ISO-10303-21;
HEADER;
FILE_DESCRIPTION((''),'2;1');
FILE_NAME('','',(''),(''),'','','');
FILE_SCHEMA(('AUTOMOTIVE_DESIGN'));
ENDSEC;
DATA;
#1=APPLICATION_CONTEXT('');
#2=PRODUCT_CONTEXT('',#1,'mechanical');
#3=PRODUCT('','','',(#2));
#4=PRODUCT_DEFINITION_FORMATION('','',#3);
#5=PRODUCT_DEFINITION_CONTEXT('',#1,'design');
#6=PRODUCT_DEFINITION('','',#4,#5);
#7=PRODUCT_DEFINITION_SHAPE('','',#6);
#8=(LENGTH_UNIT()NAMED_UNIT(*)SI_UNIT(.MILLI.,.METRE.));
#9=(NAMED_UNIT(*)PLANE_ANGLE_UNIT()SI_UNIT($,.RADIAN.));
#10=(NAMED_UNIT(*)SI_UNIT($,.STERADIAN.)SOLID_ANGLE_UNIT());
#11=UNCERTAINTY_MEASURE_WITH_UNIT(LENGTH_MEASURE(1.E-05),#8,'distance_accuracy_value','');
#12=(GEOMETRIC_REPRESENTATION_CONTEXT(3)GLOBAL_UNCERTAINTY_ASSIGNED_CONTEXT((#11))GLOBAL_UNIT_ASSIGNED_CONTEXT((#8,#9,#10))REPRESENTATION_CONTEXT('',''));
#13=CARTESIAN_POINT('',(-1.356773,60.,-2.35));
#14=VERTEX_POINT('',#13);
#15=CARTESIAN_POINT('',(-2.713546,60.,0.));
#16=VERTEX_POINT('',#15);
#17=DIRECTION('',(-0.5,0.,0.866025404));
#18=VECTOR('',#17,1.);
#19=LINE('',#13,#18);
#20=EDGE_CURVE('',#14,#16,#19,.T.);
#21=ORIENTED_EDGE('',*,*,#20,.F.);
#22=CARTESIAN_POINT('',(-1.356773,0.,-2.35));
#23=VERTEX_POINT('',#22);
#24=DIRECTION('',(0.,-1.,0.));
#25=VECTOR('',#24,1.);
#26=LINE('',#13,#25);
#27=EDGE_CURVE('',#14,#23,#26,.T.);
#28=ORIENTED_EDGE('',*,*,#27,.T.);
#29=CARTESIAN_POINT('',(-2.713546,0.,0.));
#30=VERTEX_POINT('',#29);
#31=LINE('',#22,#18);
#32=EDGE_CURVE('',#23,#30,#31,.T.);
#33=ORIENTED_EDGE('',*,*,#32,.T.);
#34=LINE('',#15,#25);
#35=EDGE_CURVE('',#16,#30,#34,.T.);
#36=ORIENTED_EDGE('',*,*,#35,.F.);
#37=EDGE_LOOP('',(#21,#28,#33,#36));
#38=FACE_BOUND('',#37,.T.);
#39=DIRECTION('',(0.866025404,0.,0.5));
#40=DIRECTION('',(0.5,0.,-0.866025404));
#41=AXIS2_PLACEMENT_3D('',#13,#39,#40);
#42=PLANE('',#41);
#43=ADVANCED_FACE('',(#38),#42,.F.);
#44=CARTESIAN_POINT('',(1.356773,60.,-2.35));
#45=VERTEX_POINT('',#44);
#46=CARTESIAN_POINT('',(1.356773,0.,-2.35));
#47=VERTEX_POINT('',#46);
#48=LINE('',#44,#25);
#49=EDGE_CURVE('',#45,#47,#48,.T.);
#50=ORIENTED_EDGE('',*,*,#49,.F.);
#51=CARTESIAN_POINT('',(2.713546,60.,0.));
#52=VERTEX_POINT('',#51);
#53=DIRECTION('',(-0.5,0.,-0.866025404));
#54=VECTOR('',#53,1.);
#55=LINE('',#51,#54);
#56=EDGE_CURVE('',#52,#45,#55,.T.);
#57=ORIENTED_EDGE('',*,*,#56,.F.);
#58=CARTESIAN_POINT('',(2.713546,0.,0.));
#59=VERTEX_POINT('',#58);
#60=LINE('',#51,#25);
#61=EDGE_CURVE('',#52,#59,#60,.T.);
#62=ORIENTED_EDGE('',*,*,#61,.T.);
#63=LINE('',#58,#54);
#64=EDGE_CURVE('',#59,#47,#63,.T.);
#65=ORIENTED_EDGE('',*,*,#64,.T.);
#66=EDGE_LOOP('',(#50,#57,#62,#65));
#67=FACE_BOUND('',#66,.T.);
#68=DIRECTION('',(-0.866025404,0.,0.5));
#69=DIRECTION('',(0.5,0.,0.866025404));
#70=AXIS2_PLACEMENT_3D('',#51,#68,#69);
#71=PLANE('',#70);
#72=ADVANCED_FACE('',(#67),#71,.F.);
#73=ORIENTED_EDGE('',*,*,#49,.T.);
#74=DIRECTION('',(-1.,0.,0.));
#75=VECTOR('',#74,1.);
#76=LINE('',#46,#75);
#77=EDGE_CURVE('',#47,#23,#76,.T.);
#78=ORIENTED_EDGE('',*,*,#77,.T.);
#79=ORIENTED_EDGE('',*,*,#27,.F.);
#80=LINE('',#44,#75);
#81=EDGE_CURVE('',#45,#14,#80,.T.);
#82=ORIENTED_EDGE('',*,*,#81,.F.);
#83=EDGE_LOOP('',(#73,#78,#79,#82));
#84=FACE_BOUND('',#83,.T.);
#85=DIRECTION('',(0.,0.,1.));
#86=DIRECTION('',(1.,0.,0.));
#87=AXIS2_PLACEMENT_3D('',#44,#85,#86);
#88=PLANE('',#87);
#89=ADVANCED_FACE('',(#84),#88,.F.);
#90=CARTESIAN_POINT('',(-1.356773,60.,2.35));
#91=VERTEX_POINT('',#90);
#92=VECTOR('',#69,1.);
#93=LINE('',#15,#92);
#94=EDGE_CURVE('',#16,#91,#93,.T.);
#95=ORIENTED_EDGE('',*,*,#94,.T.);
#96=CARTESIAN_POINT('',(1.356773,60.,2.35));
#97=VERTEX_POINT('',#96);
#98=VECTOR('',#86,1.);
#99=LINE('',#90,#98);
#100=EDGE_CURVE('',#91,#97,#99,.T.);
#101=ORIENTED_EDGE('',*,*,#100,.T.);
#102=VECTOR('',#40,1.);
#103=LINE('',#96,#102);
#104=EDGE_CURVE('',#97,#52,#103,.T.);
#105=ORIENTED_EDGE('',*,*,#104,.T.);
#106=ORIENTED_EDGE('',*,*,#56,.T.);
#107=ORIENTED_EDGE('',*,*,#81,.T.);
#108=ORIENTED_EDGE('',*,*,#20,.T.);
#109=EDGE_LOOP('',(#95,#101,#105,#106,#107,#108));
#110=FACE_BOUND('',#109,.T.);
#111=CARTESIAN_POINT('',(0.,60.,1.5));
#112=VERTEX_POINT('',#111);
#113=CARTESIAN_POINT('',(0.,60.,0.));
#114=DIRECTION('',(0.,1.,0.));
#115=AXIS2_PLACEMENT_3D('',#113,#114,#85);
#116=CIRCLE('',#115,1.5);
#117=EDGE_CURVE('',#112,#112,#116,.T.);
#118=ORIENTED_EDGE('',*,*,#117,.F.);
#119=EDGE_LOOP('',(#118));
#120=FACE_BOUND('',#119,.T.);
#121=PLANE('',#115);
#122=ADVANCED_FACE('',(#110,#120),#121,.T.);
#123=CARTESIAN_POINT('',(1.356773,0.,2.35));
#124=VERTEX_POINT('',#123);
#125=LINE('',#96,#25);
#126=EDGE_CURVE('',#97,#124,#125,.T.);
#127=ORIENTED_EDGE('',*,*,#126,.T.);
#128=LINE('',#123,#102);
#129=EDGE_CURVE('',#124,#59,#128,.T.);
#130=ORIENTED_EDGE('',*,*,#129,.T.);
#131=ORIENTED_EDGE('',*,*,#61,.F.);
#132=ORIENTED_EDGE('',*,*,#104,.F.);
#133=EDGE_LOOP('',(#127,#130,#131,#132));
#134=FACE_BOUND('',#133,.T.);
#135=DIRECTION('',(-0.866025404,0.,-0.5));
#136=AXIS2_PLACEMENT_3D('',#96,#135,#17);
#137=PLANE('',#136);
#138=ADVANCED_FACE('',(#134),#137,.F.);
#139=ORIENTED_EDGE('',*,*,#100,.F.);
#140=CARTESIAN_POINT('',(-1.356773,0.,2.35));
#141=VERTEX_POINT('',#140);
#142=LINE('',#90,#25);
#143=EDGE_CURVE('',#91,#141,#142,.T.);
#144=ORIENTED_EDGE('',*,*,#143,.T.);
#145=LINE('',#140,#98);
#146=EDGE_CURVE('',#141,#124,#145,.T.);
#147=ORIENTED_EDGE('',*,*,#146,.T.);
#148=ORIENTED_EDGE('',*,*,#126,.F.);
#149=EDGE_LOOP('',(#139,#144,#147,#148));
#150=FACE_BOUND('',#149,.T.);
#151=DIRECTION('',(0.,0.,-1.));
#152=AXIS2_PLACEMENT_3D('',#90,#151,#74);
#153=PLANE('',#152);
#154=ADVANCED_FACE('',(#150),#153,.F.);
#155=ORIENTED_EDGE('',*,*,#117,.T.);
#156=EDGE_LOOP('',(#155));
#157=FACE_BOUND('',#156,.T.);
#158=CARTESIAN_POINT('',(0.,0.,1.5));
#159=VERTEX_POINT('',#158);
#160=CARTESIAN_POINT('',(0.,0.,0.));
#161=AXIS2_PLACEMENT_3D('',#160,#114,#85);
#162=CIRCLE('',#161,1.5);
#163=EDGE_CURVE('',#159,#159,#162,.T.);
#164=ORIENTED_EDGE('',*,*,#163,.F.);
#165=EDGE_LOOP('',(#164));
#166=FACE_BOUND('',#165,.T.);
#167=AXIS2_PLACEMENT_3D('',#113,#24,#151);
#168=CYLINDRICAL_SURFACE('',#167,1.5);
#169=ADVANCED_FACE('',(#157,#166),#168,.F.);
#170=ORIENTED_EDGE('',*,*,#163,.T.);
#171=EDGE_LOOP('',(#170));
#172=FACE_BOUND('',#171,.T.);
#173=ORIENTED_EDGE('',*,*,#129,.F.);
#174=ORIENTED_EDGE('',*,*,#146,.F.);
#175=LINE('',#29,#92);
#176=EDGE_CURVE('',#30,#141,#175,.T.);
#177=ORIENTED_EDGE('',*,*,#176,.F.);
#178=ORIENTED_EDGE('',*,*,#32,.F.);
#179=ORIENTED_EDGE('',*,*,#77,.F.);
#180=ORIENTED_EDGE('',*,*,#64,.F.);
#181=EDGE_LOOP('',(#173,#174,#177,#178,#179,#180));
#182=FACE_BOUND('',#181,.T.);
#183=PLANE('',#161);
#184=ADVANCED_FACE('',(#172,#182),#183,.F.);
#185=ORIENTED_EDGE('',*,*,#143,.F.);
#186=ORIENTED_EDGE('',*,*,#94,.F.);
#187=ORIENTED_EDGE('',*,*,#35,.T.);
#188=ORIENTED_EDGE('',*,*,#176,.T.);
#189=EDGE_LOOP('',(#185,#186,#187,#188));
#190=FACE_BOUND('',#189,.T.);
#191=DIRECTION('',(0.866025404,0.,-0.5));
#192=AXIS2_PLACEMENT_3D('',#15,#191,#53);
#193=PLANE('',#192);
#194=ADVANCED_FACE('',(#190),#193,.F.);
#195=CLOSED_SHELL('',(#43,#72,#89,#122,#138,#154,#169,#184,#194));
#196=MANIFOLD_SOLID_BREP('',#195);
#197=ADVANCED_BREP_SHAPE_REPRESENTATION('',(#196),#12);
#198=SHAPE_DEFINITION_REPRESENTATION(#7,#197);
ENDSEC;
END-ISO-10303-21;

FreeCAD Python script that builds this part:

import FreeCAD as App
import Part
import Sketcher
from FreeCAD import Vector
Q = App.Units.Quantity


def add_polygon(sketch, points):
    """Adds a closed chain of lines whose ends are joined by coincident constraints."""
    first, n = sketch.GeometryCount, len(points)
    for a, b in zip(points, points[1:] + points[:1]):
        sketch.addGeometry(Part.LineSegment(App.Vector(*a, 0), App.Vector(*b, 0)), False)
    for i in range(n):
        sketch.addConstraint(Sketcher.Constraint("Coincident", first + i, 2, first + (i + 1) % n, 1))

doc = App.newDocument("Part")
body = doc.addObject("PartDesign::Body", "Body")

# Sketch on XZ plane
sketch1 = body.newObject("Sketcher::SketchObject", "Sketch")
sketch1.AttachmentSupport = (doc.getObject("XZ_Plane"), [""])
sketch1.MapMode = "FlatFace"
add_polygon(sketch1, [(2.7, 0), (1.4, -2.4), (-1.4, -2.4), (-2.7, 0), (-1.4, 2.4), (1.4, 2.4)])  # lines 0-5
sketch1.addGeometry(Part.Circle(Vector(0, 0, 0), Vector(0, 0, 1), 1.5), False)  # 6
sketch1.addConstraint([
    Sketcher.Constraint("Horizontal", 1),
    Sketcher.Constraint("Horizontal", 4),
    Sketcher.Constraint("Coincident", 6, 3, -1, 1),
    Sketcher.Constraint("Symmetric", 0, 2, 3, 2, -1, 1),
    Sketcher.Constraint("Symmetric", 2, 2, 5, 2, -1, 1),
    Sketcher.Constraint("PointOnObject", 2, 2, -1),
    Sketcher.Constraint("Parallel", 2, 5),
    Sketcher.Constraint("Vertical", 1, 2, 3, 2),
    Sketcher.Constraint("Diameter", 6, Q("3 mm")),
    Sketcher.Constraint("Angle", 0, Q("-120 deg")),
    Sketcher.Constraint("DistanceY", 1, 2, 3, 2, Q("4.7 mm")),
    Sketcher.Constraint("DistanceX", 1, 2, 1, 1, Q("2.713546 mm")),
])
pad1 = body.newObject("PartDesign::Pad", "Pad")
pad1.Profile = sketch1
pad1.Length = 60
pad1.Reversed = True

doc.recompute()
